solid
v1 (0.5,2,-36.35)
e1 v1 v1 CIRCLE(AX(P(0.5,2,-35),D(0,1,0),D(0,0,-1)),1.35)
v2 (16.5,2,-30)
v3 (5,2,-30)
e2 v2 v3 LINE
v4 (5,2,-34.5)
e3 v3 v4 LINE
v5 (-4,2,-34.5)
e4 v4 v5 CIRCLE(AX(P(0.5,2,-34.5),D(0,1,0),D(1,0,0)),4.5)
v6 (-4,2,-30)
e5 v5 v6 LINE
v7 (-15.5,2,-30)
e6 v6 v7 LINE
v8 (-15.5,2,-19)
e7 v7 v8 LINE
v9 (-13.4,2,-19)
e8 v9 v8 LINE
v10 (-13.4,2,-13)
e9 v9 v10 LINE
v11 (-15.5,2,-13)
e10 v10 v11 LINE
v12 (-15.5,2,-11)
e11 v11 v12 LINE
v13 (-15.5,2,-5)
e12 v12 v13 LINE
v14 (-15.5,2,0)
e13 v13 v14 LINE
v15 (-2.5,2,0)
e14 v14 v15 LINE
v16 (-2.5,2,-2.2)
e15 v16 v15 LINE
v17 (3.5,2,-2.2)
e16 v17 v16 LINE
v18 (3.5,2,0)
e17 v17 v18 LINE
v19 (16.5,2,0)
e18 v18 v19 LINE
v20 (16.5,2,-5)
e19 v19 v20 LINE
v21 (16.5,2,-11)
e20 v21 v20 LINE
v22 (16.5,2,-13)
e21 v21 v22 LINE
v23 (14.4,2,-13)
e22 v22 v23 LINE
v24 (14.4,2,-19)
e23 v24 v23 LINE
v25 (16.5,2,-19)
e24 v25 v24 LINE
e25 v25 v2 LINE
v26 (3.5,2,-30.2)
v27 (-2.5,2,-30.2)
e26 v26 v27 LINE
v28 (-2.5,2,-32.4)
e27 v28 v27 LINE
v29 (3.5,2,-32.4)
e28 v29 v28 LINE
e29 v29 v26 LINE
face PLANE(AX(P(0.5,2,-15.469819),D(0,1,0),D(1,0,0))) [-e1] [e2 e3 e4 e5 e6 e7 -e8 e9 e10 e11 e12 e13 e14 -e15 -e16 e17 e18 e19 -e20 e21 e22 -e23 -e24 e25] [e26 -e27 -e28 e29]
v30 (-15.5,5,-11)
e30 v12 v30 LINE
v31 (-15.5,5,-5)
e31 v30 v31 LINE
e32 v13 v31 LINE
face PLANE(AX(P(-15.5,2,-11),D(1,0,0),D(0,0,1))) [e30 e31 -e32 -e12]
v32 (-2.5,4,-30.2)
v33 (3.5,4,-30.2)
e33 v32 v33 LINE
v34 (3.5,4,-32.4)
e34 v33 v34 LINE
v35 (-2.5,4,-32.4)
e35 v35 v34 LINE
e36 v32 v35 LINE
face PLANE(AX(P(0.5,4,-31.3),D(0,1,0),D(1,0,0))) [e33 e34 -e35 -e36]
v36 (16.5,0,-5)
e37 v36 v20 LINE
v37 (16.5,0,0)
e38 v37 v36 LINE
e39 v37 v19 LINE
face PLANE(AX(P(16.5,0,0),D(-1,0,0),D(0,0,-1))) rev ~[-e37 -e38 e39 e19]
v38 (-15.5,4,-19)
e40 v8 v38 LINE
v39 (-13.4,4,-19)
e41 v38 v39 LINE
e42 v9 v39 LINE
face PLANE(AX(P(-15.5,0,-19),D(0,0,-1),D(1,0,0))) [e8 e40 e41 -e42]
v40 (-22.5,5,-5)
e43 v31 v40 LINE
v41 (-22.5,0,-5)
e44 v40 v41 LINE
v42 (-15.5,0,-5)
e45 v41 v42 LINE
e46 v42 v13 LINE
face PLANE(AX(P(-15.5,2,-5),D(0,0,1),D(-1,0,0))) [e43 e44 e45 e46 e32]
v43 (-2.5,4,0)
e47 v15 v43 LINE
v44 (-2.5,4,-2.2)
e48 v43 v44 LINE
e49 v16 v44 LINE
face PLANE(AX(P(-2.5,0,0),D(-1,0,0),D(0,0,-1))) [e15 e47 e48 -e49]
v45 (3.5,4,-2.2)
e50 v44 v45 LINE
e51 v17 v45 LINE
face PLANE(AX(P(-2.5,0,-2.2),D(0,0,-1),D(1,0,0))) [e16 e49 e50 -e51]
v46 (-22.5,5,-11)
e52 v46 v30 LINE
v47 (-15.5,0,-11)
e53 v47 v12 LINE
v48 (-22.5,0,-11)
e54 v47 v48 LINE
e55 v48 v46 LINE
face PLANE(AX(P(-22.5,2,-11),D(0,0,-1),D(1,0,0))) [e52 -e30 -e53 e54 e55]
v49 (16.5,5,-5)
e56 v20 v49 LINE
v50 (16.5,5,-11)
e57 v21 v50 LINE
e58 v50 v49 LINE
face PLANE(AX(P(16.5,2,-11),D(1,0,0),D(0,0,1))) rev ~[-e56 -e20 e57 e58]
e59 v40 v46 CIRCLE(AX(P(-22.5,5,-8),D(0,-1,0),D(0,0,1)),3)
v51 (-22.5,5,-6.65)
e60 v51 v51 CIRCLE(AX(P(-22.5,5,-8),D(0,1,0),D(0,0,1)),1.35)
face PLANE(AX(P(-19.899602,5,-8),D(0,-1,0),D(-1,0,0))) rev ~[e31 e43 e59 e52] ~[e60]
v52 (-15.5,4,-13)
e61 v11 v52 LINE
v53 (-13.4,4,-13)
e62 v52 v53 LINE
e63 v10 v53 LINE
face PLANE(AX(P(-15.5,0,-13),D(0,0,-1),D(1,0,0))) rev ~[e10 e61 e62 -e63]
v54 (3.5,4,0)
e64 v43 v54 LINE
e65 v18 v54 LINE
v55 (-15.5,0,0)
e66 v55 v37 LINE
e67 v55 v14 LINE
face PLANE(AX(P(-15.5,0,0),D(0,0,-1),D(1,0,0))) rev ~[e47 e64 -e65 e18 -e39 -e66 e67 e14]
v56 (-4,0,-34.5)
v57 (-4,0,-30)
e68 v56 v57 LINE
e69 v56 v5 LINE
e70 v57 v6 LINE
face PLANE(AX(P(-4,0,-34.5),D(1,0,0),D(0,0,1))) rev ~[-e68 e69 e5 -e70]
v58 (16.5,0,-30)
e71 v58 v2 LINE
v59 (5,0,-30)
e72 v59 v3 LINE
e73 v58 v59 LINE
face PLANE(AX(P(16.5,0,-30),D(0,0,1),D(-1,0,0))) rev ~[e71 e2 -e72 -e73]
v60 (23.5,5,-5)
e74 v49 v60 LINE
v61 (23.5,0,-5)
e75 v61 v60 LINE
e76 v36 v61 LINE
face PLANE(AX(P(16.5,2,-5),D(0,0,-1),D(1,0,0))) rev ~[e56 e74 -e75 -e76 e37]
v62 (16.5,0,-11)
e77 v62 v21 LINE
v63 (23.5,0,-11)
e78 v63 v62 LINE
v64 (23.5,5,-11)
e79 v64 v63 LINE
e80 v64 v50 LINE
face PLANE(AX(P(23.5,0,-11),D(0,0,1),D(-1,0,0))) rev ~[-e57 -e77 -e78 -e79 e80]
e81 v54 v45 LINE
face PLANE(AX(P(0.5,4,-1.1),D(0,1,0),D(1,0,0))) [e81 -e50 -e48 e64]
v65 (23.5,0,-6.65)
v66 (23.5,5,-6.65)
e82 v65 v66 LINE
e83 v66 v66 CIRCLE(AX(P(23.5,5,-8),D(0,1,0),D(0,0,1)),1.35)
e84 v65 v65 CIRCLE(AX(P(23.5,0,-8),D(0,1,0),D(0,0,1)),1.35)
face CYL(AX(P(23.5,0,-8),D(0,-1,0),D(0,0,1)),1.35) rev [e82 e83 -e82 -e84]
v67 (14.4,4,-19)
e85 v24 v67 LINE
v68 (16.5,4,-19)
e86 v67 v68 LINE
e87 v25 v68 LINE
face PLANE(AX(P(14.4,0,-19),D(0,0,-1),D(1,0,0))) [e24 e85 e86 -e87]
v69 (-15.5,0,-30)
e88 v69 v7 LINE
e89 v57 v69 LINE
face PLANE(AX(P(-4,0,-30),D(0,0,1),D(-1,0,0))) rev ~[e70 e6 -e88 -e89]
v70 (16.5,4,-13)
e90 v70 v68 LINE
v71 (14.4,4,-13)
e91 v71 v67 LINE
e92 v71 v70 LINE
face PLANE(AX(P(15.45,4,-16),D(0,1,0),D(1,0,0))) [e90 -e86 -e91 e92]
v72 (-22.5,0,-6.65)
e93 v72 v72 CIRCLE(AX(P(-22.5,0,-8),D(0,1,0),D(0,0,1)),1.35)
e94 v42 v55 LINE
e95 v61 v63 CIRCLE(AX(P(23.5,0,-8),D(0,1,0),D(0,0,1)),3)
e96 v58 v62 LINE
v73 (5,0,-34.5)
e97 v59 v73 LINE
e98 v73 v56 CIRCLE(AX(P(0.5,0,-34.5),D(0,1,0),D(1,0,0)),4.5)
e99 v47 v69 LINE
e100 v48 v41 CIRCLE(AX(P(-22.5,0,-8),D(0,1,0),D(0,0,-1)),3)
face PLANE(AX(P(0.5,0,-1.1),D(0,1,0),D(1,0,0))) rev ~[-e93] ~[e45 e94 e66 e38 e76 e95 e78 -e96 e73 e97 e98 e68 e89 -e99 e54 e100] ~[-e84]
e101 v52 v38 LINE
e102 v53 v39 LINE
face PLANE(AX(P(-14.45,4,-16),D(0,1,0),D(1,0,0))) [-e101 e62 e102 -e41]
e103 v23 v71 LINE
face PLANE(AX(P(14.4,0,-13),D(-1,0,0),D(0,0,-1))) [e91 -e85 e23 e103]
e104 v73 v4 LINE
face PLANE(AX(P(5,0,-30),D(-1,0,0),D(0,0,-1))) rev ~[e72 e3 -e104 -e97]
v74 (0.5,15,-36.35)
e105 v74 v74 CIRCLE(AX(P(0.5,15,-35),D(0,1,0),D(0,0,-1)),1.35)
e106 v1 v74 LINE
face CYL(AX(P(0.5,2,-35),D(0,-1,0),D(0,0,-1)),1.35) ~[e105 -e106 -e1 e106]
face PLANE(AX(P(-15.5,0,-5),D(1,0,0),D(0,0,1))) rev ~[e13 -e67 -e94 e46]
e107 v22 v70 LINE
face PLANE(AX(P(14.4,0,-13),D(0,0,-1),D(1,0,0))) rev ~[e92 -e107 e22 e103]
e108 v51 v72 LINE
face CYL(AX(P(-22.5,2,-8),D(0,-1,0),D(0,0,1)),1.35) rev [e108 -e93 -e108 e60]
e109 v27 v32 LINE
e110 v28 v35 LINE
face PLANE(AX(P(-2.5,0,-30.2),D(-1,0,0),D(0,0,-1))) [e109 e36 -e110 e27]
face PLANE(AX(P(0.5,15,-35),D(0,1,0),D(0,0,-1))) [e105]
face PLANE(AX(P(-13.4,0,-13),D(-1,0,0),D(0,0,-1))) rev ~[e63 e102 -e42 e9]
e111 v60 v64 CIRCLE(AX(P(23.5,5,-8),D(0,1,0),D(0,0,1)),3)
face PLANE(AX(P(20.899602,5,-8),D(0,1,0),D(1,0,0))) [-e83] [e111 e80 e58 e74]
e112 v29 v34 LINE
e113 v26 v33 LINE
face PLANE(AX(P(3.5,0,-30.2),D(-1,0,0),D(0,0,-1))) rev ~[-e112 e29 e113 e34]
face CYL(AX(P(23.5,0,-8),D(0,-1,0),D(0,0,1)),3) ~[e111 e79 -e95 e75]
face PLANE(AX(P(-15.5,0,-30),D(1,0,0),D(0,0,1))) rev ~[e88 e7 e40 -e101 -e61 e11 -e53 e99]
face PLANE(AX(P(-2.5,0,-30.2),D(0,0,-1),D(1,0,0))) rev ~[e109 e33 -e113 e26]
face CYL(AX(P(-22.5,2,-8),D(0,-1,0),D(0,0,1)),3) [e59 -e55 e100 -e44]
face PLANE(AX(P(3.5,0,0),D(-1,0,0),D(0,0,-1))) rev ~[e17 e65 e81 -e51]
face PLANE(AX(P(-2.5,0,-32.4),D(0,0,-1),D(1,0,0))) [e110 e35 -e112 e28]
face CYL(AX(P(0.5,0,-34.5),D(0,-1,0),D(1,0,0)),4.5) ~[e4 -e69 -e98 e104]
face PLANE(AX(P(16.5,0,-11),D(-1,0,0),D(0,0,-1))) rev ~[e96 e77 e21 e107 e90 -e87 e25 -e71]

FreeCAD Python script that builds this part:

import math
import FreeCAD as App
import Part
import Sketcher
from FreeCAD import Vector
Q = App.Units.Quantity

doc = App.newDocument("Part")
body = doc.addObject("PartDesign::Body", "Body")

# Sketch on XZ plane
sketch1 = body.newObject("Sketcher::SketchObject", "Sketch")
sketch1.AttachmentSupport = (doc.getObject("XZ_Plane"), [""])
sketch1.MapMode = "FlatFace"
sketch1.addGeometry([
    Part.LineSegment(Vector(-15.5, -30, 0), Vector(-15.5, -11, 0)),  # 0
    Part.LineSegment(Vector(-15.5, -11, 0), Vector(-22.5, -11, 0)),  # 1
    Part.ArcOfCircle(Part.Circle(Vector(-22.5, -8, 0), Vector(0, 0, 1), 3), math.radians(90), math.radians(270)),  # 2
    Part.LineSegment(Vector(-22.5, -5, 0), Vector(-15.5, -5, 0)),  # 3
    Part.LineSegment(Vector(-15.5, -5, 0), Vector(-15.5, 0, 0)),  # 4
    Part.LineSegment(Vector(-15.5, 0, 0), Vector(16.5, 0, 0)),  # 5
    Part.LineSegment(Vector(16.5, 0, 0), Vector(16.5, -5, 0)),  # 6
    Part.LineSegment(Vector(16.5, -5, 0), Vector(23.5, -5, 0)),  # 7
    Part.ArcOfCircle(Part.Circle(Vector(23.5, -8, 0), Vector(0, 0, 1), 3), math.radians(-90), math.radians(90)),  # 8
    Part.LineSegment(Vector(23.5, -11, 0), Vector(16.5, -11, 0)),  # 9
    Part.LineSegment(Vector(16.5, -11, 0), Vector(16.5, -30, 0)),  # 10
    Part.LineSegment(Vector(16.5, -30, 0), Vector(5, -30, 0)),  # 11
    Part.LineSegment(Vector(5, -30, 0), Vector(5, -34.5, 0)),  # 12
    Part.ArcOfCircle(Part.Circle(Vector(0.5, -34.5, 0), Vector(0, 0, 1), 4.5), math.radians(180), math.radians(360)),  # 13
    Part.LineSegment(Vector(-4, -34.5, 0), Vector(-4, -30, 0)),  # 14
    Part.LineSegment(Vector(-4, -30, 0), Vector(-15.5, -30, 0)),  # 15
    Part.Circle(Vector(-22.5, -8, 0), Vector(0, 0, 1), 1.35),  # 16
    Part.Circle(Vector(23.5, -8, 0), Vector(0, 0, 1), 1.35),  # 17
], False)
sketch1.addConstraint([
    Sketcher.Constraint("Coincident", 0, 2, 1, 1),
    Sketcher.Constraint("Tangent", 1, 2, 2, 2),
    Sketcher.Constraint("Tangent", 2, 1, 3, 1),
    Sketcher.Constraint("Coincident", 3, 2, 4, 1),
    Sketcher.Constraint("Coincident", 4, 2, 5, 1),
    Sketcher.Constraint("Coincident", 5, 2, 6, 1),
    Sketcher.Constraint("Coincident", 6, 2, 7, 1),
    Sketcher.Constraint("Tangent", 7, 2, 8, 2),
    Sketcher.Constraint("Tangent", 8, 1, 9, 1),
    Sketcher.Constraint("Coincident", 9, 2, 10, 1),
    Sketcher.Constraint("Coincident", 10, 2, 11, 1),
    Sketcher.Constraint("Coincident", 11, 2, 12, 1),
    Sketcher.Constraint("Tangent", 12, 2, 13, 2),
    Sketcher.Constraint("Tangent", 13, 1, 14, 1),
    Sketcher.Constraint("Coincident", 14, 2, 15, 1),
    Sketcher.Constraint("Coincident", 15, 2, 0, 1),
    Sketcher.Constraint("Vertical", 0),
    Sketcher.Constraint("Horizontal", 1),
    Sketcher.Constraint("Horizontal", 3),
    Sketcher.Constraint("Vertical", 4),
    Sketcher.Constraint("Horizontal", 5),
    Sketcher.Constraint("Vertical", 6),
    Sketcher.Constraint("Horizontal", 7),
    Sketcher.Constraint("Horizontal", 9),
    Sketcher.Constraint("Vertical", 10),
    Sketcher.Constraint("Horizontal", 11),
    Sketcher.Constraint("Vertical", 12),
    Sketcher.Constraint("Vertical", 14),
    Sketcher.Constraint("Horizontal", 15),
    Sketcher.Constraint("Coincident", 16, 3, 2, 3),
    Sketcher.Constraint("Coincident", 17, 3, 8, 3),
    Sketcher.Constraint("Equal", 2, 8),
    Sketcher.Constraint("Equal", 16, 17),
    Sketcher.Constraint("PointOnObject", 4, 2, -1),
    Sketcher.Constraint("Horizontal", 2, 3, 8, 3),
    Sketcher.Constraint("Horizontal", 11, 2, 14, 2),
    Sketcher.Constraint("Vertical", 0, 2, 3, 2),
    Sketcher.Constraint("Vertical", 6, 2, 9, 2),
    Sketcher.Constraint("Equal", 3, 7),
    Sketcher.Constraint("Equal", 11, 15),
    Sketcher.Constraint("Radius", 2, Q("3 mm")),
    Sketcher.Constraint("Diameter", 16, Q("2.7 mm")),
    Sketcher.Constraint("Radius", 13, Q("4.5 mm")),
    Sketcher.Constraint("DistanceX", 1, 2, 1, 1, Q("7 mm")),
    Sketcher.Constraint("DistanceX", 5, 1, 5, 2, Q("32 mm")),
    Sketcher.Constraint("DistanceY", 0, 1, 0, 2, Q("19 mm")),
    Sketcher.Constraint("DistanceY", 4, 1, 4, 2, Q("5 mm")),
    Sketcher.Constraint("DistanceY", 12, 2, 12, 1, Q("4.5 mm")),
    Sketcher.Constraint("DistanceX", -1, 1, 11, 2, Q("5 mm")),
])
pad1 = body.newObject("PartDesign::Pad", "Pad")
pad1.Profile = sketch1
pad1.Length = 2
pad1.Reversed = True

# Sketch on XZ plane
sketch2 = body.newObject("Sketcher::SketchObject", "Sketch001")
sketch2.AttachmentSupport = (doc.getObject("XZ_Plane"), [""])
sketch2.MapMode = "FlatFace"
sketch2.AttachmentOffset = App.Placement(Vector(0, 0, -2), App.Rotation())
sketch2.addGeometry(Part.Circle(Vector(0.5, -35, 0), Vector(0, 0, 1), 1.35), False)
sketch2.addConstraint([
    Sketcher.Constraint("Diameter", 0, Q("2.7 mm")),
    Sketcher.Constraint("DistanceY", 0, 3, -1, 1, Q("35 mm")),
    Sketcher.Constraint("DistanceX", -1, 1, 0, 3, Q("0.5 mm")),
])
pad2 = body.newObject("PartDesign::Pad", "Pad001")
pad2.Profile = sketch2
pad2.Length = 13
pad2.Reversed = True

# Sketch on XZ plane
sketch3 = body.newObject("Sketcher::SketchObject", "Sketch002")
sketch3.AttachmentSupport = (doc.getObject("XZ_Plane"), [""])
sketch3.MapMode = "FlatFace"
sketch3.AttachmentOffset = App.Placement(Vector(0, 0, -2), App.Rotation())
sketch3.addGeometry([
    Part.LineSegment(Vector(-15.5, -5, 0), Vector(-15.5, -11, 0)),  # 0
    Part.LineSegment(Vector(-15.5, -11, 0), Vector(-22.5, -11, 0)),  # 1
    Part.ArcOfCircle(Part.Circle(Vector(-22.5, -8, 0), Vector(0, 0, 1), 3), math.radians(90), math.radians(270)),  # 2
    Part.LineSegment(Vector(-22.5, -5, 0), Vector(-15.5, -5, 0)),  # 3
    Part.Circle(Vector(-22.5, -8, 0), Vector(0, 0, 1), 1.35),  # 4
    Part.LineSegment(Vector(16.5, -11, 0), Vector(16.5, -5, 0)),  # 5
    Part.LineSegment(Vector(16.5, -5, 0), Vector(23.5, -5, 0)),  # 6
    Part.ArcOfCircle(Part.Circle(Vector(23.5, -8, 0), Vector(0, 0, 1), 3), math.radians(-90), math.radians(90)),  # 7
    Part.LineSegment(Vector(23.5, -11, 0), Vector(16.5, -11, 0)),  # 8
    Part.Circle(Vector(23.5, -8, 0), Vector(0, 0, 1), 1.35),  # 9
], False)
sketch3.addConstraint([
    Sketcher.Constraint("Coincident", 0, 2, 1, 1),
    Sketcher.Constraint("Tangent", 1, 2, 2, 2),
    Sketcher.Constraint("Tangent", 2, 1, 3, 1),
    Sketcher.Constraint("Coincident", 3, 2, 0, 1),
    Sketcher.Constraint("Coincident", 5, 2, 6, 1),
    Sketcher.Constraint("Tangent", 6, 2, 7, 2),
    Sketcher.Constraint("Tangent", 7, 1, 8, 1),
    Sketcher.Constraint("Coincident", 8, 2, 5, 1),
    Sketcher.Constraint("Vertical", 0),
    Sketcher.Constraint("Horizontal", 1),
    Sketcher.Constraint("Horizontal", 3),
    Sketcher.Constraint("Vertical", 5),
    Sketcher.Constraint("Horizontal", 6),
    Sketcher.Constraint("Horizontal", 8),
    Sketcher.Constraint("Coincident", 4, 3, 2, 3),
    Sketcher.Constraint("Coincident", 9, 3, 7, 3),
    Sketcher.Constraint("Equal", 2, 7),
    Sketcher.Constraint("Equal", 4, 9),
    Sketcher.Constraint("Horizontal", 4, 3, 7, 3),
    Sketcher.Constraint("Equal", 3, 6),
    Sketcher.Constraint("Radius", 2, Q("3 mm")),
    Sketcher.Constraint("Diameter", 4, Q("2.7 mm")),
    Sketcher.Constraint("DistanceX", 1, 2, 1, 1, Q("7 mm")),
    Sketcher.Constraint("DistanceY", 2, 3, -1, 1, Q("8 mm")),
    Sketcher.Constraint("DistanceX", 2, 3, 7, 3, Q("46 mm")),
    Sketcher.Constraint("DistanceX", 2, 3, -1, 1, Q("22.5 mm")),
])
pad3 = body.newObject("PartDesign::Pad", "Pad002")
pad3.Profile = sketch3
pad3.Length = 3
pad3.Reversed = True

# Sketch on XZ plane
sketch4 = body.newObject("Sketcher::SketchObject", "Sketch003")
sketch4.AttachmentSupport = (doc.getObject("XZ_Plane"), [""])
sketch4.MapMode = "FlatFace"
sketch4.addGeometry([
    Part.LineSegment(Vector(-2.5, -2.2, 0), Vector(-2.5, 0, 0)),  # 0
    Part.LineSegment(Vector(-2.5, 0, 0), Vector(3.5, 0, 0)),  # 1
    Part.LineSegment(Vector(3.5, 0, 0), Vector(3.5, -2.2, 0)),  # 2
    Part.LineSegment(Vector(3.5, -2.2, 0), Vector(-2.5, -2.2, 0)),  # 3
    Part.LineSegment(Vector(-15.5, -19, 0), Vector(-15.5, -13, 0)),  # 4
    Part.LineSegment(Vector(-15.5, -13, 0), Vector(-13.4, -13, 0)),  # 5
    Part.LineSegment(Vector(-13.4, -13, 0), Vector(-13.4, -19, 0)),  # 6
    Part.LineSegment(Vector(-13.4, -19, 0), Vector(-15.5, -19, 0)),  # 7
    Part.LineSegment(Vector(14.4, -19, 0), Vector(14.4, -13, 0)),  # 8
    Part.LineSegment(Vector(14.4, -13, 0), Vector(16.5, -13, 0)),  # 9
    Part.LineSegment(Vector(16.5, -13, 0), Vector(16.5, -19, 0)),  # 10
    Part.LineSegment(Vector(16.5, -19, 0), Vector(14.4, -19, 0)),  # 11
    Part.LineSegment(Vector(-2.5, -32.4, 0), Vector(-2.5, -30.2, 0)),  # 12
    Part.LineSegment(Vector(-2.5, -30.2, 0), Vector(3.5, -30.2, 0)),  # 13
    Part.LineSegment(Vector(3.5, -30.2, 0), Vector(3.5, -32.4, 0)),  # 14
    Part.LineSegment(Vector(3.5, -32.4, 0), Vector(-2.5, -32.4, 0)),  # 15
], False)
sketch4.addConstraint([
    Sketcher.Constraint("Coincident", 0, 2, 1, 1),
    Sketcher.Constraint("Coincident", 1, 2, 2, 1),
    Sketcher.Constraint("Coincident", 2, 2, 3, 1),
    Sketcher.Constraint("Coincident", 3, 2, 0, 1),
    Sketcher.Constraint("Coincident", 4, 2, 5, 1),
    Sketcher.Constraint("Coincident", 5, 2, 6, 1),
    Sketcher.Constraint("Coincident", 6, 2, 7, 1),
    Sketcher.Constraint("Coincident", 7, 2, 4, 1),
    Sketcher.Constraint("Coincident", 8, 2, 9, 1),
    Sketcher.Constraint("Coincident", 9, 2, 10, 1),
    Sketcher.Constraint("Coincident", 10, 2, 11, 1),
    Sketcher.Constraint("Coincident", 11, 2, 8, 1),
    Sketcher.Constraint("Coincident", 12, 2, 13, 1),
    Sketcher.Constraint("Coincident", 13, 2, 14, 1),
    Sketcher.Constraint("Coincident", 14, 2, 15, 1),
    Sketcher.Constraint("Coincident", 15, 2, 12, 1),
    Sketcher.Constraint("Vertical", 0),
    Sketcher.Constraint("Horizontal", 1),
    Sketcher.Constraint("Vertical", 2),
    Sketcher.Constraint("Horizontal", 3),
    Sketcher.Constraint("Vertical", 4),
    Sketcher.Constraint("Horizontal", 5),
    Sketcher.Constraint("Vertical", 6),
    Sketcher.Constraint("Horizontal", 7),
    Sketcher.Constraint("Vertical", 8),
    Sketcher.Constraint("Horizontal", 9),
    Sketcher.Constraint("Vertical", 10),
    Sketcher.Constraint("Horizontal", 11),
    Sketcher.Constraint("Vertical", 12),
    Sketcher.Constraint("Horizontal", 13),
    Sketcher.Constraint("Vertical", 14),
    Sketcher.Constraint("Horizontal", 15),
    Sketcher.Constraint("PointOnObject", 0, 2, -1),
    Sketcher.Constraint("Horizontal", 5, 2, 8, 2),
    Sketcher.Constraint("Horizontal", 7, 2, 10, 2),
    Sketcher.Constraint("Vertical", 3, 2, 12, 2),
    Sketcher.Constraint("Vertical", 2, 2, 13, 2),
    Sketcher.Constraint("Equal", 7, 9),
    Sketcher.Constraint("Equal", 15, 4),
    Sketcher.Constraint("Equal", 2, 12),
    Sketcher.Constraint("DistanceX", 1, 1, 1, 2, Q("6 mm")),
    Sketcher.Constraint("DistanceX", 5, 1, 5, 2, Q("2.1 mm")),
    Sketcher.Constraint("DistanceY", 0, 1, 0, 2, Q("2.2 mm")),
    Sketcher.Constraint("DistanceY", 4, 2, -1, 1, Q("13 mm")),
    Sketcher.Constraint("DistanceX", 4, 2, 3, 2, Q("13 mm")),
    Sketcher.Constraint("DistanceX", 2, 2, 9, 2, Q("13 mm")),
    Sketcher.Constraint("DistanceX", 0, 2, -1, 1, Q("2.5 mm")),
    Sketcher.Constraint("DistanceY", 12, 2, -1, 1, Q("30.2 mm")),
])
pad4 = body.newObject("PartDesign::Pad", "Pad003")
pad4.Profile = sketch4
pad4.Length = 4
pad4.Reversed = True

doc.recompute()
